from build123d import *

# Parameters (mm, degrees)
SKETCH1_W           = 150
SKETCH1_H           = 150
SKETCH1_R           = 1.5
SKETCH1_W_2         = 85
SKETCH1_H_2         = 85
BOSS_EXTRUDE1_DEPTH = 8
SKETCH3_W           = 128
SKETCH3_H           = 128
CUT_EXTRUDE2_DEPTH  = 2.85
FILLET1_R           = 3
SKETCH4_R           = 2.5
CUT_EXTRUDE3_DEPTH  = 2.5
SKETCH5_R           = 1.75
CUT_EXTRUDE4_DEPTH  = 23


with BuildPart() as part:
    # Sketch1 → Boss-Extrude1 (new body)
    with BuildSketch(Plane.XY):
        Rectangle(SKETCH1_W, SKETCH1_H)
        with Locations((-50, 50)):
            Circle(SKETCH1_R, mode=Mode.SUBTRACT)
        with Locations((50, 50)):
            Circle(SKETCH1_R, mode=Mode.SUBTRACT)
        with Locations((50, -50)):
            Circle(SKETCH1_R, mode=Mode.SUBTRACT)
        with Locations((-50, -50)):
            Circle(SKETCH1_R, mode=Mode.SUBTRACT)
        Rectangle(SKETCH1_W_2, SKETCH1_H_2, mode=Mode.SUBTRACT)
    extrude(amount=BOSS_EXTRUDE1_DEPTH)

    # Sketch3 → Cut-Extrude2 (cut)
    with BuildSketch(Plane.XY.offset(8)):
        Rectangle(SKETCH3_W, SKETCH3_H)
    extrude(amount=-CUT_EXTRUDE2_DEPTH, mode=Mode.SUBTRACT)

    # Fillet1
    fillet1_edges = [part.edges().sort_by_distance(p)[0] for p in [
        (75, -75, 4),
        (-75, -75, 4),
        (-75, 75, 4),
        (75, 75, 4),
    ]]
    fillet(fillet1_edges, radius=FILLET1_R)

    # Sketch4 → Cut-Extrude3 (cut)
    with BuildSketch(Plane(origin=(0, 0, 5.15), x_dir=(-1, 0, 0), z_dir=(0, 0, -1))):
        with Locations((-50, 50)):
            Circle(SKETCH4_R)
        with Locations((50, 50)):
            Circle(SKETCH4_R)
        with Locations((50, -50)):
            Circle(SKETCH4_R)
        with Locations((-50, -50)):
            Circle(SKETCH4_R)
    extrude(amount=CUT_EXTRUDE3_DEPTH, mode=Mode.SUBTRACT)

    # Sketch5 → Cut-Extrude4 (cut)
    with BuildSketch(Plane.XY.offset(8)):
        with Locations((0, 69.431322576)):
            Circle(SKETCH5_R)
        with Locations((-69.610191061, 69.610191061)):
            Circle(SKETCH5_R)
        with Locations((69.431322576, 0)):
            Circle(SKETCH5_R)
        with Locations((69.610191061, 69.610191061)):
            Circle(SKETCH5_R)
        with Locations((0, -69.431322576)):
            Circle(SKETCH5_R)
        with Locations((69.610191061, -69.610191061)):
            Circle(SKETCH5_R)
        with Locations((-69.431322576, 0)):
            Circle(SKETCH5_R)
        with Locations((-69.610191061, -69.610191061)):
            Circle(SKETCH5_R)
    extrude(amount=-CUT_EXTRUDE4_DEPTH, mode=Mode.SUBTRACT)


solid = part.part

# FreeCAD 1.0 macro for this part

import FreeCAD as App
import Part
import Sketcher

V = App.Vector


def edges_at(feature, points):
    """Names of the edges that pass closest to the given points."""
    edges = feature.Shape.Edges
    near = lambda p: min(range(len(edges)), key=lambda i: edges[i].distToShape(Part.Vertex(*p))[0])
    return sorted({f"Edge{near(p) + 1}" for p in points})

doc = App.newDocument("Part")
params = doc.addObject("Spreadsheet::Sheet", "Params")
for row, (alias, value) in enumerate([
    ("sketch1_diameter", "3 mm"),
    ("sketch1_width", "150 mm"),
    ("sketch1_width2", "85 mm"),
    ("pad1_length", "8 mm"),
    ("sketch2_width", "128 mm"),
    ("pocket1_length", "2.85 mm"),
    ("fillet_radius", "3 mm"),
    ("sketch3_diameter", "5 mm"),
    ("pocket2_length", "2.5 mm"),
    ("sketch4_diameter", "3.5 mm"),
    ("pocket3_length", "23 mm"),
], start=1):
    params.set(f"A{row}", alias)
    params.set(f"B{row}", "=" + value)
    params.setAlias(f"B{row}", alias)

body = doc.addObject("PartDesign::Body", "Body")

# Sketch on XY plane
sketch1 = doc.addObject("Sketcher::SketchObject", "Sketch")
body.addObject(sketch1)
sketch1.AttachmentSupport = (doc.XY_Plane, [""])
sketch1.MapMode = "FlatFace"
sketch1.addGeometry([
    Part.LineSegment(V(-75, 75, 0), V(-75, -75, 0)),  # 0
    Part.LineSegment(V(-75, -75, 0), V(75, -75, 0)),  # 1
    Part.LineSegment(V(75, -75, 0), V(75, 75, 0)),  # 2
    Part.LineSegment(V(75, 75, 0), V(-75, 75, 0)),  # 3
    Part.Circle(V(-50, -50, 0), V(0, 0, 1), 1.5),  # 4
    Part.LineSegment(V(42.5, -42.5, 0), V(-42.5, -42.5, 0)),  # 5
    Part.LineSegment(V(-42.5, -42.5, 0), V(-42.5, 42.5, 0)),  # 6
    Part.LineSegment(V(-42.5, 42.5, 0), V(42.5, 42.5, 0)),  # 7
    Part.LineSegment(V(42.5, 42.5, 0), V(42.5, -42.5, 0)),  # 8
    Part.Circle(V(50, -50, 0), V(0, 0, 1), 1.5),  # 9
    Part.Circle(V(-50, 50, 0), V(0, 0, 1), 1.5),  # 10
    Part.Circle(V(50, 50, 0), V(0, 0, 1), 1.5),  # 11
], False)
sketch1.addConstraint([
    Sketcher.Constraint("Coincident", 0, 2, 1, 1),
    Sketcher.Constraint("Coincident", 1, 2, 2, 1),
    Sketcher.Constraint("Coincident", 2, 2, 3, 1),
    Sketcher.Constraint("Coincident", 3, 2, 0, 1),
    Sketcher.Constraint("Coincident", 5, 2, 6, 1),
    Sketcher.Constraint("Coincident", 6, 2, 7, 1),
    Sketcher.Constraint("Coincident", 7, 2, 8, 1),
    Sketcher.Constraint("Coincident", 8, 2, 5, 1),
    Sketcher.Constraint("Vertical", 0),
    Sketcher.Constraint("Horizontal", 1),
    Sketcher.Constraint("Vertical", 2),
    Sketcher.Constraint("Horizontal", 3),
    Sketcher.Constraint("Horizontal", 5),
    Sketcher.Constraint("Vertical", 6),
    Sketcher.Constraint("Horizontal", 7),
    Sketcher.Constraint("Vertical", 8),
    Sketcher.Constraint("Equal", 4, 9),
    Sketcher.Constraint("Equal", 9, 10),
    Sketcher.Constraint("Equal", 10, 11),
    Sketcher.Constraint("Symmetric", 9, 3, 10, 3, -1, 1),
    Sketcher.Constraint("Symmetric", 4, 3, 11, 3, -1, 1),
    Sketcher.Constraint("Symmetric", 0, 2, 2, 2, -1, 1),
    Sketcher.Constraint("Symmetric", 5, 2, 7, 2, -1, 1),
    Sketcher.Constraint("Symmetric", 4, 3, 9, 3, -2),
    Sketcher.Constraint("Equal", 3, 0),
    Sketcher.Constraint("Equal", 7, 6),
    Sketcher.Constraint("Diameter", 4, 3.0),
    Sketcher.Constraint("DistanceX", 1, 1, 1, 2, 150.0),
    Sketcher.Constraint("DistanceX", 5, 2, 5, 1, 85.0),
    Sketcher.Constraint("DistanceX", 4, 3, -1, 1, 50.0),
    Sketcher.Constraint("DistanceY", 4, 3, -1, 1, 50.0),
])
sketch1.setExpression("Constraints[26]", "Params.sketch1_diameter")
sketch1.setExpression("Constraints[27]", "Params.sketch1_width")
sketch1.setExpression("Constraints[28]", "Params.sketch1_width2")
pad1 = doc.addObject("PartDesign::Pad", "Pad")
body.addObject(pad1)
pad1.Profile = sketch1
pad1.setExpression("Length", "Params.pad1_length")

# Sketch on XY plane
sketch2 = doc.addObject("Sketcher::SketchObject", "Sketch001")
body.addObject(sketch2)
sketch2.AttachmentSupport = (doc.XY_Plane, [""])
sketch2.MapMode = "FlatFace"
sketch2.AttachmentOffset = App.Placement(V(0, 0, 8), App.Rotation())
sketch2.addGeometry([
    Part.LineSegment(V(-64, 64, 0), V(-64, -64, 0)),
    Part.LineSegment(V(-64, -64, 0), V(64, -64, 0)),
    Part.LineSegment(V(64, -64, 0), V(64, 64, 0)),
    Part.LineSegment(V(64, 64, 0), V(-64, 64, 0)),
], False)
sketch2.addConstraint([
    Sketcher.Constraint("Coincident", 0, 2, 1, 1),
    Sketcher.Constraint("Coincident", 1, 2, 2, 1),
    Sketcher.Constraint("Coincident", 2, 2, 3, 1),
    Sketcher.Constraint("Coincident", 3, 2, 0, 1),
    Sketcher.Constraint("Vertical", 0),
    Sketcher.Constraint("Horizontal", 1),
    Sketcher.Constraint("Vertical", 2),
    Sketcher.Constraint("Horizontal", 3),
    Sketcher.Constraint("Symmetric", 0, 2, 2, 2, -1, 1),
    Sketcher.Constraint("Equal", 3, 0),
    Sketcher.Constraint("DistanceX", 1, 1, 1, 2, 128.0),
])
sketch2.setExpression("Constraints[10]", "Params.sketch2_width")
pocket1 = doc.addObject("PartDesign::Pocket", "Pocket")
body.addObject(pocket1)
pocket1.Profile = sketch2
pocket1.setExpression("Length", "Params.pocket1_length")
doc.recompute()

fillet = doc.addObject("PartDesign::Fillet", "Fillet")
body.addObject(fillet)
fillet.Base = (pocket1, edges_at(pocket1, [
    (75, -75, 4),
    (-75, -75, 4),
    (-75, 75, 4),
    (75, 75, 4),
]))
fillet.setExpression("Radius", "Params.fillet_radius")

# Sketch on XY plane
sketch3 = doc.addObject("Sketcher::SketchObject", "Sketch002")
body.addObject(sketch3)
sketch3.AttachmentSupport = (doc.XY_Plane, [""])
sketch3.MapMode = "FlatFace"
sketch3.AttachmentOffset = App.Placement(V(0, 0, 5.15), App.Rotation())
sketch3.addGeometry([
    Part.Circle(V(50, 50, 0), V(0, 0, 1), 2.5),
    Part.Circle(V(-50, 50, 0), V(0, 0, 1), 2.5),
    Part.Circle(V(-50, -50, 0), V(0, 0, 1), 2.5),
    Part.Circle(V(50, -50, 0), V(0, 0, 1), 2.5),
], False)
sketch3.addConstraint([
    Sketcher.Constraint("Equal", 0, 1),
    Sketcher.Constraint("Equal", 1, 2),
    Sketcher.Constraint("Equal", 2, 3),
    Sketcher.Constraint("Symmetric", 0, 3, 2, 3, -1, 1),
    Sketcher.Constraint("Symmetric", 1, 3, 3, 3, -1, 1),
    Sketcher.Constraint("Symmetric", 0, 3, 1, 3, -2),
    Sketcher.Constraint("Diameter", 0, 5.0),
    Sketcher.Constraint("DistanceX", -1, 1, 0, 3, 50.0),
    Sketcher.Constraint("DistanceY", -1, 1, 0, 3, 50.0),
])
sketch3.setExpression("Constraints[6]", "Params.sketch3_diameter")
pocket2 = doc.addObject("PartDesign::Pocket", "Pocket001")
body.addObject(pocket2)
pocket2.Profile = sketch3
pocket2.setExpression("Length", "Params.pocket2_length")

# Sketch on XY plane
sketch4 = doc.addObject("Sketcher::SketchObject", "Sketch003")
body.addObject(sketch4)
sketch4.AttachmentSupport = (doc.XY_Plane, [""])
sketch4.MapMode = "FlatFace"
sketch4.AttachmentOffset = App.Placement(V(0, 0, 8), App.Rotation())
sketch4.addGeometry([
    Part.Circle(V(0, 69.4, 0), V(0, 0, 1), 1.8),  # 0
    Part.Circle(V(-69.6, 69.6, 0), V(0, 0, 1), 1.8),  # 1
    Part.Circle(V(69.4, 0, 0), V(0, 0, 1), 1.8),  # 2
    Part.Circle(V(69.6, 69.6, 0), V(0, 0, 1), 1.8),  # 3
    Part.Circle(V(0, -69.4, 0), V(0, 0, 1), 1.8),  # 4
    Part.Circle(V(69.6, -69.6, 0), V(0, 0, 1), 1.8),  # 5
    Part.Circle(V(-69.4, 0, 0), V(0, 0, 1), 1.8),  # 6
    Part.Circle(V(-69.6, -69.6, 0), V(0, 0, 1), 1.8),  # 7
], False)
sketch4.addConstraint([
    Sketcher.Constraint("Equal", 0, 1),
    Sketcher.Constraint("Equal", 1, 2),
    Sketcher.Constraint("Equal", 2, 3),
    Sketcher.Constraint("Equal", 3, 4),
    Sketcher.Constraint("Equal", 4, 5),
    Sketcher.Constraint("Equal", 5, 6),
    Sketcher.Constraint("Equal", 6, 7),
    Sketcher.Constraint("Symmetric", 0, 3, 4, 3, -1, 1),
    Sketcher.Constraint("Symmetric", 1, 3, 5, 3, -1, 1),
    Sketcher.Constraint("Symmetric", 2, 3, 6, 3, -1, 1),
    Sketcher.Constraint("Symmetric", 3, 3, 7, 3, -1, 1),
    Sketcher.Constraint("Symmetric", 1, 3, 3, 3, -2),
    Sketcher.Constraint("PointOnObject", 0, 3, -2),
    Sketcher.Constraint("PointOnObject", 2, 3, -1),
    Sketcher.Constraint("Diameter", 0, 3.5),
    Sketcher.Constraint("DistanceX", 1, 3, -1, 1, 69.610191),
    Sketcher.Constraint("DistanceY", -1, 1, 1, 3, 69.610191),
    Sketcher.Constraint("DistanceY", 0, 3, 1, 3, 0.178868),
    Sketcher.Constraint("DistanceX", 2, 3, 3, 3, 0.178868),
])
sketch4.setExpression("Constraints[14]", "Params.sketch4_diameter")
pocket3 = doc.addObject("PartDesign::Pocket", "Pocket002")
body.addObject(pocket3)
pocket3.Profile = sketch4
pocket3.setExpression("Length", "Params.pocket3_length")

doc.recompute()
